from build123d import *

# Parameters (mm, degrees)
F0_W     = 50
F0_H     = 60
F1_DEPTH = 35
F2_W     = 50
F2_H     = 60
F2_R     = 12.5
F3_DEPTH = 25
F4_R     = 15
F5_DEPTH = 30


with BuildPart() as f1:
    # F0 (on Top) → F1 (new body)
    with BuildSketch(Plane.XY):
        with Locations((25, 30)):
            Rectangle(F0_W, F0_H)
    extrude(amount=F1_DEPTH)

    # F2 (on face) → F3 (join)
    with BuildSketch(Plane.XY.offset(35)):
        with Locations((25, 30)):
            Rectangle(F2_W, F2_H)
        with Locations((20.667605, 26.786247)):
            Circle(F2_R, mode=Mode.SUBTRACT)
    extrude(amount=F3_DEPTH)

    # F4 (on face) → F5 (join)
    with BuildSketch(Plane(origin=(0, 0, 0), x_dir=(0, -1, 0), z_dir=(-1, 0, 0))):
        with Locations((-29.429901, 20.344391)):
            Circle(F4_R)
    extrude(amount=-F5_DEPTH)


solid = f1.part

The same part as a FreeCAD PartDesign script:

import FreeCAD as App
import Part
import Sketcher
from FreeCAD import Vector
Q = App.Units.Quantity


def add_polygon(sketch, points):
    """Adds a closed chain of lines whose ends are joined by coincident constraints."""
    first, n = sketch.GeometryCount, len(points)
    for a, b in zip(points, points[1:] + points[:1]):
        sketch.addGeometry(Part.LineSegment(App.Vector(*a, 0), App.Vector(*b, 0)), False)
    for i in range(n):
        sketch.addConstraint(Sketcher.Constraint("Coincident", first + i, 2, first + (i + 1) % n, 1))

doc = App.newDocument("Part")
params = doc.addObject("Spreadsheet::Sheet", "Params")
for row, (alias, value) in enumerate([
    ("sketch1_width", "50 mm"),
    ("sketch1_height", "60 mm"),
    ("pad1_length", "35 mm"),
    ("sketch2_diameter", "25 mm"),
    ("sketch2_width", "50 mm"),
    ("sketch2_height", "60 mm"),
    ("pad2_length", "25 mm"),
    ("sketch3_diameter", "30 mm"),
    ("pad3_length", "30 mm"),
], start=1):
    params.set(f"A{row}", alias)
    params.set(f"B{row}", "=" + value)
    params.setAlias(f"B{row}", alias)

body = doc.addObject("PartDesign::Body", "Body")

sketch1 = body.newObject("Sketcher::SketchObject", "Sketch")
sketch1.AttachmentSupport = (doc.getObject("XY_Plane"), [""])
sketch1.MapMode = "FlatFace"
add_polygon(sketch1, [(0, 60), (0, 0), (50, 0), (50, 60)])
sketch1.addConstraint(Sketcher.Constraint("Vertical", 0))
sketch1.addConstraint(Sketcher.Constraint("Horizontal", 1))
sketch1.addConstraint(Sketcher.Constraint("Vertical", 2))
sketch1.addConstraint(Sketcher.Constraint("Horizontal", 3))
sketch1.addConstraint(Sketcher.Constraint("Coincident", 0, 2, -1, 1))
sketch1.addConstraint(Sketcher.Constraint("DistanceX", 1, 1, 1, 2, Q("50 mm")))
sketch1.addConstraint(Sketcher.Constraint("DistanceY", 0, 2, 0, 1, Q("60 mm")))
sketch1.setExpression("Constraints[9]", "Params.sketch1_width")
sketch1.setExpression("Constraints[10]", "Params.sketch1_height")
pad1 = body.newObject("PartDesign::Pad", "Pad")
pad1.Profile = sketch1
pad1.setExpression("Length", "Params.pad1_length")

sketch2 = body.newObject("Sketcher::SketchObject", "Sketch001")
sketch2.AttachmentSupport = (doc.getObject("XY_Plane"), [""])
sketch2.MapMode = "FlatFace"
sketch2.AttachmentOffset = App.Placement(Vector(0, 0, 35), App.Rotation())
add_polygon(sketch2, [(0, 60), (0, 0), (50, 0), (50, 60)])
sketch2.addGeometry(Part.Circle(Vector(21, 27, 0), Vector(0, 0, 1), 12), False)
sketch2.addConstraint(Sketcher.Constraint("Vertical", 0))
sketch2.addConstraint(Sketcher.Constraint("Horizontal", 1))
sketch2.addConstraint(Sketcher.Constraint("Vertical", 2))
sketch2.addConstraint(Sketcher.Constraint("Horizontal", 3))
sketch2.addConstraint(Sketcher.Constraint("Coincident", 0, 2, -1, 1))
sketch2.addConstraint(Sketcher.Constraint("Diameter", 4, Q("25 mm")))
sketch2.addConstraint(Sketcher.Constraint("DistanceX", 1, 1, 1, 2, Q("50 mm")))
sketch2.addConstraint(Sketcher.Constraint("DistanceY", 0, 2, 0, 1, Q("60 mm")))
sketch2.addConstraint(Sketcher.Constraint("DistanceX", -1, 1, 4, 3, Q("20.667605 mm")))
sketch2.addConstraint(Sketcher.Constraint("DistanceY", -1, 1, 4, 3, Q("26.786247 mm")))
sketch2.setExpression("Constraints[9]", "Params.sketch2_diameter")
sketch2.setExpression("Constraints[10]", "Params.sketch2_width")
sketch2.setExpression("Constraints[11]", "Params.sketch2_height")
pad2 = body.newObject("PartDesign::Pad", "Pad001")
pad2.Profile = sketch2
pad2.setExpression("Length", "Params.pad2_length")

sketch3 = body.newObject("Sketcher::SketchObject", "Sketch002")
sketch3.AttachmentSupport = (doc.getObject("YZ_Plane"), [""])
sketch3.MapMode = "FlatFace"
sketch3.addGeometry(Part.Circle(Vector(29, 20, 0), Vector(0, 0, 1), 15), False)
sketch3.addConstraint(Sketcher.Constraint("Diameter", 0, Q("30 mm")))
sketch3.addConstraint(Sketcher.Constraint("DistanceX", -1, 1, 0, 3, Q("29.429901 mm")))
sketch3.addConstraint(Sketcher.Constraint("DistanceY", -1, 1, 0, 3, Q("20.344391 mm")))
sketch3.setExpression("Constraints[0]", "Params.sketch3_diameter")
pad3 = body.newObject("PartDesign::Pad", "Pad002")
pad3.Profile = sketch3
pad3.setExpression("Length", "Params.pad3_length")

doc.recompute()
